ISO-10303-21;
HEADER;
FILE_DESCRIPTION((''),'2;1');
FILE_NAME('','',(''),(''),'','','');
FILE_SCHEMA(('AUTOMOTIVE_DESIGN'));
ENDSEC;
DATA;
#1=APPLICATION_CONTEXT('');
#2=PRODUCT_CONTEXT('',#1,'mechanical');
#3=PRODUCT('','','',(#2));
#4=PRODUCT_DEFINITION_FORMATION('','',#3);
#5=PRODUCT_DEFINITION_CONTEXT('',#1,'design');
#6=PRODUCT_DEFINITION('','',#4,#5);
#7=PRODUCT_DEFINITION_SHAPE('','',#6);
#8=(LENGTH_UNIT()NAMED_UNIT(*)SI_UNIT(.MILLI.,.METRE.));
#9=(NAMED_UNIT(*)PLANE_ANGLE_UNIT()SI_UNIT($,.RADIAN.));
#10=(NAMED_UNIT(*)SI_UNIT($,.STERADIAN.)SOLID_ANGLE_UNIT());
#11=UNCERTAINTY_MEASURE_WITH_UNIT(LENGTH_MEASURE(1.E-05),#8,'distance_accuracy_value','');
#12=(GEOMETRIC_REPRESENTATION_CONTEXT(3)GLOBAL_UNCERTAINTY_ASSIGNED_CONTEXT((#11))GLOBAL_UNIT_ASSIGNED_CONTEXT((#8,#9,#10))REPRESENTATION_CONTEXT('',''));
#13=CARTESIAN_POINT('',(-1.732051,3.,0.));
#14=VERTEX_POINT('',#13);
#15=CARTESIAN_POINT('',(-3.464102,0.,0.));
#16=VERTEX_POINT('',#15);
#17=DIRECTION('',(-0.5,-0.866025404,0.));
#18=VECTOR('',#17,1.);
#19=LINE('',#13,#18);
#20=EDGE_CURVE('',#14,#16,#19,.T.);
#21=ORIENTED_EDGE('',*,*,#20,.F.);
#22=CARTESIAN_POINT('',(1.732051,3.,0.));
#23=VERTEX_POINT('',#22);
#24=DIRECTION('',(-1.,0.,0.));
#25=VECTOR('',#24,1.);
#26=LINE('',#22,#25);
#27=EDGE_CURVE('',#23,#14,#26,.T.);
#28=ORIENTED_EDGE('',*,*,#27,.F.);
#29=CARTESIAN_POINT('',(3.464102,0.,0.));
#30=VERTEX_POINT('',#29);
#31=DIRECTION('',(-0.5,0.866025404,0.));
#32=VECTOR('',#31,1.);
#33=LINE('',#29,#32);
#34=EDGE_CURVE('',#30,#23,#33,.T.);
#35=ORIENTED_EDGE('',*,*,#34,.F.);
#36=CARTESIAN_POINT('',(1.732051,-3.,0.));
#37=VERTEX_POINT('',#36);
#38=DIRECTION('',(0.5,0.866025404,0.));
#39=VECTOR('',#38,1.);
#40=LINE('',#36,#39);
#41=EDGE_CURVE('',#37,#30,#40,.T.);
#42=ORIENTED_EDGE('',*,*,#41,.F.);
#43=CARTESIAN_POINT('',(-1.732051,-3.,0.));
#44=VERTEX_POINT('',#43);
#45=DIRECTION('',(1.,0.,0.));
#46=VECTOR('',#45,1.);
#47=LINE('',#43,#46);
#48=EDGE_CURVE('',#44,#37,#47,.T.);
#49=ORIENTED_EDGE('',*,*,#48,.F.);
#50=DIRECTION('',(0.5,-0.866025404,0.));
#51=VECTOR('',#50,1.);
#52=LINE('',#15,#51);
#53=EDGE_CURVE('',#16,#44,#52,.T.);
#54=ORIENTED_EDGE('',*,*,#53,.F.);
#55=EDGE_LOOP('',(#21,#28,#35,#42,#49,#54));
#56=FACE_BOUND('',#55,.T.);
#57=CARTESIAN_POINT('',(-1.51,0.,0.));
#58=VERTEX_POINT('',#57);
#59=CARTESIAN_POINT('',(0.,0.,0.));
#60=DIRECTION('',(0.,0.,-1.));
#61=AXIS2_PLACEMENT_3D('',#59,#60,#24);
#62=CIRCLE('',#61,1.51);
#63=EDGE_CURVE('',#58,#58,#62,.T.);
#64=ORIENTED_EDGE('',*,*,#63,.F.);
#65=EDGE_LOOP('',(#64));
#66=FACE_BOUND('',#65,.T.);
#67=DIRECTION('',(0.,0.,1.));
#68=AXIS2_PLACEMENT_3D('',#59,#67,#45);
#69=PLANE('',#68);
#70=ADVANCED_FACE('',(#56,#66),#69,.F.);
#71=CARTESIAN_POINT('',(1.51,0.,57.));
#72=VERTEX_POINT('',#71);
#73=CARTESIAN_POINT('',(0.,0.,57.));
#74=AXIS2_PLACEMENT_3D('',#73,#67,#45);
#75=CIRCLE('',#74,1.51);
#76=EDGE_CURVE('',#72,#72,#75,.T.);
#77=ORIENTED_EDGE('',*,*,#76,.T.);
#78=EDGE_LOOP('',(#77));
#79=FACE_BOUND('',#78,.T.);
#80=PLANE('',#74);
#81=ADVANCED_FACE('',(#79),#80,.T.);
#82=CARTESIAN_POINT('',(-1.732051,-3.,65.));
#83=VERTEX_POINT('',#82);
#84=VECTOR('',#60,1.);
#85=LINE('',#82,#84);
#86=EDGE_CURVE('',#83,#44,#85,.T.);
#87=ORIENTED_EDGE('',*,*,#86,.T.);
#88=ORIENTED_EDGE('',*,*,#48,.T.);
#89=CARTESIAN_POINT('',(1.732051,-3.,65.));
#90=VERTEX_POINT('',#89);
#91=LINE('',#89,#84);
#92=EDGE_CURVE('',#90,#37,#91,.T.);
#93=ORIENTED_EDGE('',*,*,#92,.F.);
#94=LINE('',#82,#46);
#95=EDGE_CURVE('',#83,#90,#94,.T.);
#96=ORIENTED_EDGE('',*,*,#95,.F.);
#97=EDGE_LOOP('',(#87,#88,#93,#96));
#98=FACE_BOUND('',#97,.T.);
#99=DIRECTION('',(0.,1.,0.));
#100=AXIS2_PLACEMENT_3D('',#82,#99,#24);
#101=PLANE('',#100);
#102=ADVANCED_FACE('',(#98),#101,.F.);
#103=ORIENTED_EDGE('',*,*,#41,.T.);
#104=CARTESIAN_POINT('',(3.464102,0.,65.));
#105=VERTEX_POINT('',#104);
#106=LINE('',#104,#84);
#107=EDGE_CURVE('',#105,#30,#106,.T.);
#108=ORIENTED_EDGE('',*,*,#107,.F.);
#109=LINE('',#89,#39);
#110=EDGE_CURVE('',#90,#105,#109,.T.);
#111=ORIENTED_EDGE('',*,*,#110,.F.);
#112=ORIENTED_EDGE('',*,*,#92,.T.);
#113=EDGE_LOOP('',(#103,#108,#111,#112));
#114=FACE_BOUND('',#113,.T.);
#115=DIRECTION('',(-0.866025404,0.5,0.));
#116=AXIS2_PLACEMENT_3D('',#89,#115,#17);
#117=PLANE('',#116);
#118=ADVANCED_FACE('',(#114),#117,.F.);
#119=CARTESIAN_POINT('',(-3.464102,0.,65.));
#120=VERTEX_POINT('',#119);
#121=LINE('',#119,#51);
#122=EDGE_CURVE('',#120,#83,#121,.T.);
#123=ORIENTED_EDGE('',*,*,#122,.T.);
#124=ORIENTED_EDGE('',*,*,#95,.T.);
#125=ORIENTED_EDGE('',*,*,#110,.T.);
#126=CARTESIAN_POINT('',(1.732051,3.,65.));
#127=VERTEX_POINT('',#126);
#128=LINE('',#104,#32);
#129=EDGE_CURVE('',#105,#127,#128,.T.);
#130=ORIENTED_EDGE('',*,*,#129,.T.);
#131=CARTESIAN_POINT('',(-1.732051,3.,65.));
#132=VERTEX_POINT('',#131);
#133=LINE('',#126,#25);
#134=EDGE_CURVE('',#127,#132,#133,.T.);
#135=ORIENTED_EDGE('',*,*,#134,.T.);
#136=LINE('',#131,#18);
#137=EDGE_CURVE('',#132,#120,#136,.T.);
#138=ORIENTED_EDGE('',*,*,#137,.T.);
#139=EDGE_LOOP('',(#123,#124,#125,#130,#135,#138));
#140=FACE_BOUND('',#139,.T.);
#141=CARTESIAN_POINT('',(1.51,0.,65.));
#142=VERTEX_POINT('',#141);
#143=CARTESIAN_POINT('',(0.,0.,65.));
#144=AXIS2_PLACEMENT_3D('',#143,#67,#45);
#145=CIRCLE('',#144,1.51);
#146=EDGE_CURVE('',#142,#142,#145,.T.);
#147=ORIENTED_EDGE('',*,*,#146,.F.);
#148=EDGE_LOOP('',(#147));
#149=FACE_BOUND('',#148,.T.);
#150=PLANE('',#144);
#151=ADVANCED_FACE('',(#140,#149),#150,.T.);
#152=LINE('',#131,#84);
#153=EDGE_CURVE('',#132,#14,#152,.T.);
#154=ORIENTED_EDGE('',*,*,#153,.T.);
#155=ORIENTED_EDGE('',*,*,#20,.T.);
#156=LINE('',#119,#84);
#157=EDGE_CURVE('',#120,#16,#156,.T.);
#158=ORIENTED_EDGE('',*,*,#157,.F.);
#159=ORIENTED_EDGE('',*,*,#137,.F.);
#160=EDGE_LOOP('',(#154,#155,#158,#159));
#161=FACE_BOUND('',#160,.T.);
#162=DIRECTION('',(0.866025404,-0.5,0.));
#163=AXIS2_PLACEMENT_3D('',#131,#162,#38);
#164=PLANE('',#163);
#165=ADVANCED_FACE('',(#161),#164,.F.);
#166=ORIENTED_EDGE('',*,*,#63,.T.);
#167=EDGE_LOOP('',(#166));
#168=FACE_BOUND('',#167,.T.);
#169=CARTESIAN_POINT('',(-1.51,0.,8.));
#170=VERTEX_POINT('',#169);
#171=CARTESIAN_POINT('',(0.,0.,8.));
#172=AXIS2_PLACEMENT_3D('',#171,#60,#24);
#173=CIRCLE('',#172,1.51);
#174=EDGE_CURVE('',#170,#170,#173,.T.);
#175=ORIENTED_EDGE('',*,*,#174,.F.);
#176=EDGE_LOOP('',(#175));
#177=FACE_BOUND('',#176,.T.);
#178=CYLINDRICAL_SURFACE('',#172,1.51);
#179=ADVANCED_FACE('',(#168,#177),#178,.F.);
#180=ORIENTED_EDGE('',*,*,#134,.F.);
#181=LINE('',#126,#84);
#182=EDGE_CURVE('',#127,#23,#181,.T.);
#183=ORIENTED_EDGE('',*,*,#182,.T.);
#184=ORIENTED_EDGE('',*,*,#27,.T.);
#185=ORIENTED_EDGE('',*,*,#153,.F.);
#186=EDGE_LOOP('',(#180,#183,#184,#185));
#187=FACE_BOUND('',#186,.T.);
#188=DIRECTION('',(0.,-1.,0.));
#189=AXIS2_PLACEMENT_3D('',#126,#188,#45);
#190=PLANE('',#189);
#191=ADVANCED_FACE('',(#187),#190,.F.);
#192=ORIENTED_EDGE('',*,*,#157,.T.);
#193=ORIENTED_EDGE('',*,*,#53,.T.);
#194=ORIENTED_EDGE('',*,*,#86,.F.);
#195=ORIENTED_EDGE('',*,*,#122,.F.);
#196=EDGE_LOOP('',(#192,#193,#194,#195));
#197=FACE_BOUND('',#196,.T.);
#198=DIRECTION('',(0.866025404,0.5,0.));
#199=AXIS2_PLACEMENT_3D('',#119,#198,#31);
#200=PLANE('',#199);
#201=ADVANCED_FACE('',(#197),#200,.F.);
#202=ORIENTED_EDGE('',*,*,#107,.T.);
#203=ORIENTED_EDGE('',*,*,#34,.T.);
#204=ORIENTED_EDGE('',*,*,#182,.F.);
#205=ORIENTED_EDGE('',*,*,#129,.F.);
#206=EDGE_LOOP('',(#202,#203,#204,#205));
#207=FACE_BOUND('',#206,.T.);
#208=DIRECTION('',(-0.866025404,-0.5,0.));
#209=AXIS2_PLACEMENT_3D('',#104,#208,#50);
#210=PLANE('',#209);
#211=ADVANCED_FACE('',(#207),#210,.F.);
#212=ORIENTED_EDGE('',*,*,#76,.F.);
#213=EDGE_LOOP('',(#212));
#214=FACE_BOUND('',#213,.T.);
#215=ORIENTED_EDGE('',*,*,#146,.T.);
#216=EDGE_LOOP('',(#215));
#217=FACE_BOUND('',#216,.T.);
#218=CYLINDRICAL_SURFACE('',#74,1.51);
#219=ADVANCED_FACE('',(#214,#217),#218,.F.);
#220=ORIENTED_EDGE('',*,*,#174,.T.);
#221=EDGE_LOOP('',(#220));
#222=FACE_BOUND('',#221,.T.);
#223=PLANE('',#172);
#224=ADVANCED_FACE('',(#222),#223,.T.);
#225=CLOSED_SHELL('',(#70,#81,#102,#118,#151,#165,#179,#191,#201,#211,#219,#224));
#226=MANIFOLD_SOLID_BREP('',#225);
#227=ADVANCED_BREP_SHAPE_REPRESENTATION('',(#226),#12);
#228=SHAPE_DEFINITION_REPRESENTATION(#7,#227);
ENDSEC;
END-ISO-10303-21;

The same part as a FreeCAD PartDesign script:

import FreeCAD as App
import Part
import Sketcher
from FreeCAD import Vector
Q = App.Units.Quantity


def add_polygon(sketch, points):
    """Adds a closed chain of lines whose ends are joined by coincident constraints."""
    first, n = sketch.GeometryCount, len(points)
    for a, b in zip(points, points[1:] + points[:1]):
        sketch.addGeometry(Part.LineSegment(App.Vector(*a, 0), App.Vector(*b, 0)), False)
    for i in range(n):
        sketch.addConstraint(Sketcher.Constraint("Coincident", first + i, 2, first + (i + 1) % n, 1))

doc = App.newDocument("Part")
body = doc.addObject("PartDesign::Body", "Body")

# Sketch on XY plane
sketch1 = body.newObject("Sketcher::SketchObject", "Sketch")
sketch1.AttachmentSupport = (doc.getObject("XY_Plane"), [""])
sketch1.MapMode = "FlatFace"
add_polygon(sketch1, [(3.464102, 0), (1.732051, 3), (-1.732051, 3), (-3.464102, 0), (-1.732051, -3), (1.732051, -3)])  # lines 0-5
sketch1.addConstraint([
    Sketcher.Constraint("Horizontal", 1),
    Sketcher.Constraint("Horizontal", 4),
    Sketcher.Constraint("Symmetric", 0, 2, 3, 2, -1, 1),
    Sketcher.Constraint("Symmetric", 2, 2, 5, 2, -1, 1),
    Sketcher.Constraint("PointOnObject", 2, 2, -1),
    Sketcher.Constraint("Parallel", 2, 5),
    Sketcher.Constraint("Vertical", 1, 2, 3, 2),
    Sketcher.Constraint("Angle", 0, Q("120 deg")),
    Sketcher.Constraint("DistanceY", -1, 1, 0, 2, 3.0),
    Sketcher.Constraint("DistanceX", 1, 2, 1, 1, 3.464102),
])
pad1 = body.newObject("PartDesign::Pad", "Pad")
pad1.Profile = sketch1
pad1.Length = 65

# Sketch on XY plane
sketch2 = body.newObject("Sketcher::SketchObject", "Sketch001")
sketch2.AttachmentSupport = (doc.getObject("XY_Plane"), [""])
sketch2.MapMode = "FlatFace"
sketch2.addGeometry(Part.Circle(Vector(0, 0, 0), Vector(0, 0, 1), 1.51), False)
sketch2.addConstraint([
    Sketcher.Constraint("Coincident", 0, 3, -1, 1),
    Sketcher.Constraint("Diameter", 0, 3.02),
])
pocket1 = body.newObject("PartDesign::Pocket", "Pocket")
pocket1.Profile = sketch2
pocket1.Length = 8
pocket1.Reversed = True

# Sketch on XY plane
sketch3 = body.newObject("Sketcher::SketchObject", "Sketch002")
sketch3.AttachmentSupport = (doc.getObject("XY_Plane"), [""])
sketch3.MapMode = "FlatFace"
sketch3.AttachmentOffset = App.Placement(Vector(0, 0, 57), App.Rotation())
sketch3.addGeometry(Part.Circle(Vector(0, 0, 0), Vector(0, 0, 1), 1.51), False)
sketch3.addConstraint([
    Sketcher.Constraint("Coincident", 0, 3, -1, 1),
    Sketcher.Constraint("Diameter", 0, 3.02),
])
pocket2 = body.newObject("PartDesign::Pocket", "Pocket001")
pocket2.Profile = sketch3
pocket2.Length = 8
pocket2.Reversed = True

doc.recompute()
